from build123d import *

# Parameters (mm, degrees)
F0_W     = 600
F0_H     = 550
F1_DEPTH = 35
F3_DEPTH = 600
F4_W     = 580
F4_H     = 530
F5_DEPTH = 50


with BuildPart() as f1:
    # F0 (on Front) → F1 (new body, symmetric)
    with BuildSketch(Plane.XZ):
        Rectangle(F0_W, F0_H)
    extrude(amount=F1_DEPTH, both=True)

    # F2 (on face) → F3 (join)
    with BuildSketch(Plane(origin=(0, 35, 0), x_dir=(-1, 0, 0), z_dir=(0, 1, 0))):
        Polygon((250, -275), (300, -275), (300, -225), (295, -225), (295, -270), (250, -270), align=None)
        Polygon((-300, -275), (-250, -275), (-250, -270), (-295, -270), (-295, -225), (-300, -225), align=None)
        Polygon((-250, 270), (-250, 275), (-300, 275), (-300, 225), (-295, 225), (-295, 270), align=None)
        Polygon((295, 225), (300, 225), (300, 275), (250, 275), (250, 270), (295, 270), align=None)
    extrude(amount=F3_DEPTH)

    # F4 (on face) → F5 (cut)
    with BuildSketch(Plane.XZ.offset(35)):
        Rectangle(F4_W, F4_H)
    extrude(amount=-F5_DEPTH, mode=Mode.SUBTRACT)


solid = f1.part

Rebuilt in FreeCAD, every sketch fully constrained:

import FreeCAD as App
import Part
import Sketcher
from FreeCAD import Vector
Q = App.Units.Quantity

doc = App.newDocument("Part")
params = doc.addObject("Spreadsheet::Sheet", "Params")
for row, (alias, value) in enumerate([
    ("sketch1_width", "600 mm"),
    ("sketch1_height", "550 mm"),
    ("pad1_length", "70 mm"),
    ("sketch2_width", "50 mm"),
    ("sketch2_width2", "5 mm"),
    ("pad2_length", "600 mm"),
    ("sketch3_width", "580 mm"),
    ("sketch3_height", "530 mm"),
    ("pocket1_length", "50 mm"),
], start=1):
    params.set(f"A{row}", alias)
    params.set(f"B{row}", "=" + value)
    params.setAlias(f"B{row}", alias)

body = doc.addObject("PartDesign::Body", "Body")

sketch1 = body.newObject("Sketcher::SketchObject", "Sketch")
sketch1.AttachmentSupport = (doc.getObject("XZ_Plane"), [""])
sketch1.MapMode = "FlatFace"
sketch1.addGeometry(Part.LineSegment(Vector(-300, 275, 0), Vector(-300, -275, 0)), False)
sketch1.addGeometry(Part.LineSegment(Vector(-300, -275, 0), Vector(300, -275, 0)), False)
sketch1.addGeometry(Part.LineSegment(Vector(300, -275, 0), Vector(300, 275, 0)), False)
sketch1.addGeometry(Part.LineSegment(Vector(300, 275, 0), Vector(-300, 275, 0)), False)
sketch1.addConstraint(Sketcher.Constraint("Coincident", 0, 2, 1, 1))
sketch1.addConstraint(Sketcher.Constraint("Coincident", 1, 2, 2, 1))
sketch1.addConstraint(Sketcher.Constraint("Coincident", 2, 2, 3, 1))
sketch1.addConstraint(Sketcher.Constraint("Coincident", 3, 2, 0, 1))
sketch1.addConstraint(Sketcher.Constraint("Vertical", 0))
sketch1.addConstraint(Sketcher.Constraint("Horizontal", 1))
sketch1.addConstraint(Sketcher.Constraint("Vertical", 2))
sketch1.addConstraint(Sketcher.Constraint("Horizontal", 3))
sketch1.addConstraint(Sketcher.Constraint("Symmetric", 0, 2, 2, 2, -1, 1))
sketch1.addConstraint(Sketcher.Constraint("DistanceX", 1, 1, 1, 2, Q("600 mm")))
sketch1.addConstraint(Sketcher.Constraint("DistanceY", 0, 2, 0, 1, Q("550 mm")))
sketch1.setExpression("Constraints[9]", "Params.sketch1_width")
sketch1.setExpression("Constraints[10]", "Params.sketch1_height")
pad1 = body.newObject("PartDesign::Pad", "Pad")
pad1.Profile = sketch1
pad1.setExpression("Length", "Params.pad1_length")
pad1.Midplane = True

sketch2 = body.newObject("Sketcher::SketchObject", "Sketch001")
sketch2.AttachmentSupport = (doc.getObject("XZ_Plane"), [""])
sketch2.MapMode = "FlatFace"
sketch2.AttachmentOffset = App.Placement(Vector(0, 0, -35), App.Rotation())
sketch2.addGeometry(Part.LineSegment(Vector(-250, -275, 0), Vector(-300, -275, 0)), False)
sketch2.addGeometry(Part.LineSegment(Vector(-300, -275, 0), Vector(-300, -225, 0)), False)
sketch2.addGeometry(Part.LineSegment(Vector(-300, -225, 0), Vector(-295, -225, 0)), False)
sketch2.addGeometry(Part.LineSegment(Vector(-295, -225, 0), Vector(-295, -270, 0)), False)
sketch2.addGeometry(Part.LineSegment(Vector(-295, -270, 0), Vector(-250, -270, 0)), False)
sketch2.addGeometry(Part.LineSegment(Vector(-250, -270, 0), Vector(-250, -275, 0)), False)
sketch2.addGeometry(Part.LineSegment(Vector(300, -275, 0), Vector(250, -275, 0)), False)
sketch2.addGeometry(Part.LineSegment(Vector(250, -275, 0), Vector(250, -270, 0)), False)
sketch2.addGeometry(Part.LineSegment(Vector(250, -270, 0), Vector(295, -270, 0)), False)
sketch2.addGeometry(Part.LineSegment(Vector(295, -270, 0), Vector(295, -225, 0)), False)
sketch2.addGeometry(Part.LineSegment(Vector(295, -225, 0), Vector(300, -225, 0)), False)
sketch2.addGeometry(Part.LineSegment(Vector(300, -225, 0), Vector(300, -275, 0)), False)
sketch2.addGeometry(Part.LineSegment(Vector(250, 270, 0), Vector(250, 275, 0)), False)
sketch2.addGeometry(Part.LineSegment(Vector(250, 275, 0), Vector(300, 275, 0)), False)
sketch2.addGeometry(Part.LineSegment(Vector(300, 275, 0), Vector(300, 225, 0)), False)
sketch2.addGeometry(Part.LineSegment(Vector(300, 225, 0), Vector(295, 225, 0)), False)
sketch2.addGeometry(Part.LineSegment(Vector(295, 225, 0), Vector(295, 270, 0)), False)
sketch2.addGeometry(Part.LineSegment(Vector(295, 270, 0), Vector(250, 270, 0)), False)
sketch2.addGeometry(Part.LineSegment(Vector(-295, 225, 0), Vector(-300, 225, 0)), False)
sketch2.addGeometry(Part.LineSegment(Vector(-300, 225, 0), Vector(-300, 275, 0)), False)
sketch2.addGeometry(Part.LineSegment(Vector(-300, 275, 0), Vector(-250, 275, 0)), False)
sketch2.addGeometry(Part.LineSegment(Vector(-250, 275, 0), Vector(-250, 270, 0)), False)
sketch2.addGeometry(Part.LineSegment(Vector(-250, 270, 0), Vector(-295, 270, 0)), False)
sketch2.addGeometry(Part.LineSegment(Vector(-295, 270, 0), Vector(-295, 225, 0)), False)
sketch2.addConstraint(Sketcher.Constraint("Coincident", 0, 2, 1, 1))
sketch2.addConstraint(Sketcher.Constraint("Coincident", 1, 2, 2, 1))
sketch2.addConstraint(Sketcher.Constraint("Coincident", 2, 2, 3, 1))
sketch2.addConstraint(Sketcher.Constraint("Coincident", 3, 2, 4, 1))
sketch2.addConstraint(Sketcher.Constraint("Coincident", 4, 2, 5, 1))
sketch2.addConstraint(Sketcher.Constraint("Coincident", 5, 2, 0, 1))
sketch2.addConstraint(Sketcher.Constraint("Coincident", 6, 2, 7, 1))
sketch2.addConstraint(Sketcher.Constraint("Coincident", 7, 2, 8, 1))
sketch2.addConstraint(Sketcher.Constraint("Coincident", 8, 2, 9, 1))
sketch2.addConstraint(Sketcher.Constraint("Coincident", 9, 2, 10, 1))
sketch2.addConstraint(Sketcher.Constraint("Coincident", 10, 2, 11, 1))
sketch2.addConstraint(Sketcher.Constraint("Coincident", 11, 2, 6, 1))
sketch2.addConstraint(Sketcher.Constraint("Coincident", 12, 2, 13, 1))
sketch2.addConstraint(Sketcher.Constraint("Coincident", 13, 2, 14, 1))
sketch2.addConstraint(Sketcher.Constraint("Coincident", 14, 2, 15, 1))
sketch2.addConstraint(Sketcher.Constraint("Coincident", 15, 2, 16, 1))
sketch2.addConstraint(Sketcher.Constraint("Coincident", 16, 2, 17, 1))
sketch2.addConstraint(Sketcher.Constraint("Coincident", 17, 2, 12, 1))
sketch2.addConstraint(Sketcher.Constraint("Coincident", 18, 2, 19, 1))
sketch2.addConstraint(Sketcher.Constraint("Coincident", 19, 2, 20, 1))
sketch2.addConstraint(Sketcher.Constraint("Coincident", 20, 2, 21, 1))
sketch2.addConstraint(Sketcher.Constraint("Coincident", 21, 2, 22, 1))
sketch2.addConstraint(Sketcher.Constraint("Coincident", 22, 2, 23, 1))
sketch2.addConstraint(Sketcher.Constraint("Coincident", 23, 2, 18, 1))
sketch2.addConstraint(Sketcher.Constraint("Horizontal", 0))
sketch2.addConstraint(Sketcher.Constraint("Vertical", 1))
sketch2.addConstraint(Sketcher.Constraint("Horizontal", 2))
sketch2.addConstraint(Sketcher.Constraint("Vertical", 3))
sketch2.addConstraint(Sketcher.Constraint("Horizontal", 4))
sketch2.addConstraint(Sketcher.Constraint("Vertical", 5))
sketch2.addConstraint(Sketcher.Constraint("Horizontal", 6))
sketch2.addConstraint(Sketcher.Constraint("Vertical", 7))
sketch2.addConstraint(Sketcher.Constraint("Horizontal", 8))
sketch2.addConstraint(Sketcher.Constraint("Vertical", 9))
sketch2.addConstraint(Sketcher.Constraint("Horizontal", 10))
sketch2.addConstraint(Sketcher.Constraint("Vertical", 11))
sketch2.addConstraint(Sketcher.Constraint("Vertical", 12))
sketch2.addConstraint(Sketcher.Constraint("Horizontal", 13))
sketch2.addConstraint(Sketcher.Constraint("Vertical", 14))
sketch2.addConstraint(Sketcher.Constraint("Horizontal", 15))
sketch2.addConstraint(Sketcher.Constraint("Vertical", 16))
sketch2.addConstraint(Sketcher.Constraint("Horizontal", 17))
sketch2.addConstraint(Sketcher.Constraint("Horizontal", 18))
sketch2.addConstraint(Sketcher.Constraint("Vertical", 19))
sketch2.addConstraint(Sketcher.Constraint("Horizontal", 20))
sketch2.addConstraint(Sketcher.Constraint("Vertical", 21))
sketch2.addConstraint(Sketcher.Constraint("Horizontal", 22))
sketch2.addConstraint(Sketcher.Constraint("Vertical", 23))
sketch2.addConstraint(Sketcher.Constraint("Symmetric", 5, 2, 12, 2, -1, 1))
sketch2.addConstraint(Sketcher.Constraint("Symmetric", 1, 2, 14, 2, -1, 1))
sketch2.addConstraint(Sketcher.Constraint("Symmetric", 3, 2, 16, 2, -1, 1))
sketch2.addConstraint(Sketcher.Constraint("Symmetric", 10, 2, 18, 2, -1, 1))
sketch2.addConstraint(Sketcher.Constraint("Symmetric", 6, 2, 20, 2, -1, 1))
sketch2.addConstraint(Sketcher.Constraint("Symmetric", 8, 2, 22, 2, -1, 1))
sketch2.addConstraint(Sketcher.Constraint("Symmetric", 5, 2, 6, 2, -2))
sketch2.addConstraint(Sketcher.Constraint("Symmetric", 3, 2, 8, 2, -2))
sketch2.addConstraint(Sketcher.Constraint("Symmetric", 1, 2, 10, 2, -2))
sketch2.addConstraint(Sketcher.Constraint("Equal", 20, 1))
sketch2.addConstraint(Sketcher.Constraint("Equal", 22, 3))
sketch2.addConstraint(Sketcher.Constraint("DistanceX", 0, 2, 0, 1, Q("50 mm")))
sketch2.addConstraint(Sketcher.Constraint("DistanceX", 2, 1, 2, 2, Q("5 mm")))
sketch2.addConstraint(Sketcher.Constraint("DistanceX", 0, 2, -1, 1, Q("300 mm")))
sketch2.addConstraint(Sketcher.Constraint("DistanceY", 0, 2, -1, 1, Q("275 mm")))
sketch2.setExpression("Constraints[59]", "Params.sketch2_width")
sketch2.setExpression("Constraints[60]", "Params.sketch2_width2")
pad2 = body.newObject("PartDesign::Pad", "Pad001")
pad2.Profile = sketch2
pad2.setExpression("Length", "Params.pad2_length")
pad2.Reversed = True

sketch3 = body.newObject("Sketcher::SketchObject", "Sketch002")
sketch3.AttachmentSupport = (doc.getObject("XZ_Plane"), [""])
sketch3.MapMode = "FlatFace"
sketch3.AttachmentOffset = App.Placement(Vector(0, 0, 35), App.Rotation())
sketch3.addGeometry(Part.LineSegment(Vector(-290, 265, 0), Vector(-290, -265, 0)), False)
sketch3.addGeometry(Part.LineSegment(Vector(-290, -265, 0), Vector(290, -265, 0)), False)
sketch3.addGeometry(Part.LineSegment(Vector(290, -265, 0), Vector(290, 265, 0)), False)
sketch3.addGeometry(Part.LineSegment(Vector(290, 265, 0), Vector(-290, 265, 0)), False)
sketch3.addConstraint(Sketcher.Constraint("Coincident", 0, 2, 1, 1))
sketch3.addConstraint(Sketcher.Constraint("Coincident", 1, 2, 2, 1))
sketch3.addConstraint(Sketcher.Constraint("Coincident", 2, 2, 3, 1))
sketch3.addConstraint(Sketcher.Constraint("Coincident", 3, 2, 0, 1))
sketch3.addConstraint(Sketcher.Constraint("Vertical", 0))
sketch3.addConstraint(Sketcher.Constraint("Horizontal", 1))
sketch3.addConstraint(Sketcher.Constraint("Vertical", 2))
sketch3.addConstraint(Sketcher.Constraint("Horizontal", 3))
sketch3.addConstraint(Sketcher.Constraint("Symmetric", 0, 2, 2, 2, -1, 1))
sketch3.addConstraint(Sketcher.Constraint("DistanceX", 1, 1, 1, 2, Q("580 mm")))
sketch3.addConstraint(Sketcher.Constraint("DistanceY", 0, 2, 0, 1, Q("530 mm")))
sketch3.setExpression("Constraints[9]", "Params.sketch3_width")
sketch3.setExpression("Constraints[10]", "Params.sketch3_height")
pocket1 = body.newObject("PartDesign::Pocket", "Pocket")
pocket1.Profile = sketch3
pocket1.setExpression("Length", "Params.pocket1_length")

doc.recompute()
